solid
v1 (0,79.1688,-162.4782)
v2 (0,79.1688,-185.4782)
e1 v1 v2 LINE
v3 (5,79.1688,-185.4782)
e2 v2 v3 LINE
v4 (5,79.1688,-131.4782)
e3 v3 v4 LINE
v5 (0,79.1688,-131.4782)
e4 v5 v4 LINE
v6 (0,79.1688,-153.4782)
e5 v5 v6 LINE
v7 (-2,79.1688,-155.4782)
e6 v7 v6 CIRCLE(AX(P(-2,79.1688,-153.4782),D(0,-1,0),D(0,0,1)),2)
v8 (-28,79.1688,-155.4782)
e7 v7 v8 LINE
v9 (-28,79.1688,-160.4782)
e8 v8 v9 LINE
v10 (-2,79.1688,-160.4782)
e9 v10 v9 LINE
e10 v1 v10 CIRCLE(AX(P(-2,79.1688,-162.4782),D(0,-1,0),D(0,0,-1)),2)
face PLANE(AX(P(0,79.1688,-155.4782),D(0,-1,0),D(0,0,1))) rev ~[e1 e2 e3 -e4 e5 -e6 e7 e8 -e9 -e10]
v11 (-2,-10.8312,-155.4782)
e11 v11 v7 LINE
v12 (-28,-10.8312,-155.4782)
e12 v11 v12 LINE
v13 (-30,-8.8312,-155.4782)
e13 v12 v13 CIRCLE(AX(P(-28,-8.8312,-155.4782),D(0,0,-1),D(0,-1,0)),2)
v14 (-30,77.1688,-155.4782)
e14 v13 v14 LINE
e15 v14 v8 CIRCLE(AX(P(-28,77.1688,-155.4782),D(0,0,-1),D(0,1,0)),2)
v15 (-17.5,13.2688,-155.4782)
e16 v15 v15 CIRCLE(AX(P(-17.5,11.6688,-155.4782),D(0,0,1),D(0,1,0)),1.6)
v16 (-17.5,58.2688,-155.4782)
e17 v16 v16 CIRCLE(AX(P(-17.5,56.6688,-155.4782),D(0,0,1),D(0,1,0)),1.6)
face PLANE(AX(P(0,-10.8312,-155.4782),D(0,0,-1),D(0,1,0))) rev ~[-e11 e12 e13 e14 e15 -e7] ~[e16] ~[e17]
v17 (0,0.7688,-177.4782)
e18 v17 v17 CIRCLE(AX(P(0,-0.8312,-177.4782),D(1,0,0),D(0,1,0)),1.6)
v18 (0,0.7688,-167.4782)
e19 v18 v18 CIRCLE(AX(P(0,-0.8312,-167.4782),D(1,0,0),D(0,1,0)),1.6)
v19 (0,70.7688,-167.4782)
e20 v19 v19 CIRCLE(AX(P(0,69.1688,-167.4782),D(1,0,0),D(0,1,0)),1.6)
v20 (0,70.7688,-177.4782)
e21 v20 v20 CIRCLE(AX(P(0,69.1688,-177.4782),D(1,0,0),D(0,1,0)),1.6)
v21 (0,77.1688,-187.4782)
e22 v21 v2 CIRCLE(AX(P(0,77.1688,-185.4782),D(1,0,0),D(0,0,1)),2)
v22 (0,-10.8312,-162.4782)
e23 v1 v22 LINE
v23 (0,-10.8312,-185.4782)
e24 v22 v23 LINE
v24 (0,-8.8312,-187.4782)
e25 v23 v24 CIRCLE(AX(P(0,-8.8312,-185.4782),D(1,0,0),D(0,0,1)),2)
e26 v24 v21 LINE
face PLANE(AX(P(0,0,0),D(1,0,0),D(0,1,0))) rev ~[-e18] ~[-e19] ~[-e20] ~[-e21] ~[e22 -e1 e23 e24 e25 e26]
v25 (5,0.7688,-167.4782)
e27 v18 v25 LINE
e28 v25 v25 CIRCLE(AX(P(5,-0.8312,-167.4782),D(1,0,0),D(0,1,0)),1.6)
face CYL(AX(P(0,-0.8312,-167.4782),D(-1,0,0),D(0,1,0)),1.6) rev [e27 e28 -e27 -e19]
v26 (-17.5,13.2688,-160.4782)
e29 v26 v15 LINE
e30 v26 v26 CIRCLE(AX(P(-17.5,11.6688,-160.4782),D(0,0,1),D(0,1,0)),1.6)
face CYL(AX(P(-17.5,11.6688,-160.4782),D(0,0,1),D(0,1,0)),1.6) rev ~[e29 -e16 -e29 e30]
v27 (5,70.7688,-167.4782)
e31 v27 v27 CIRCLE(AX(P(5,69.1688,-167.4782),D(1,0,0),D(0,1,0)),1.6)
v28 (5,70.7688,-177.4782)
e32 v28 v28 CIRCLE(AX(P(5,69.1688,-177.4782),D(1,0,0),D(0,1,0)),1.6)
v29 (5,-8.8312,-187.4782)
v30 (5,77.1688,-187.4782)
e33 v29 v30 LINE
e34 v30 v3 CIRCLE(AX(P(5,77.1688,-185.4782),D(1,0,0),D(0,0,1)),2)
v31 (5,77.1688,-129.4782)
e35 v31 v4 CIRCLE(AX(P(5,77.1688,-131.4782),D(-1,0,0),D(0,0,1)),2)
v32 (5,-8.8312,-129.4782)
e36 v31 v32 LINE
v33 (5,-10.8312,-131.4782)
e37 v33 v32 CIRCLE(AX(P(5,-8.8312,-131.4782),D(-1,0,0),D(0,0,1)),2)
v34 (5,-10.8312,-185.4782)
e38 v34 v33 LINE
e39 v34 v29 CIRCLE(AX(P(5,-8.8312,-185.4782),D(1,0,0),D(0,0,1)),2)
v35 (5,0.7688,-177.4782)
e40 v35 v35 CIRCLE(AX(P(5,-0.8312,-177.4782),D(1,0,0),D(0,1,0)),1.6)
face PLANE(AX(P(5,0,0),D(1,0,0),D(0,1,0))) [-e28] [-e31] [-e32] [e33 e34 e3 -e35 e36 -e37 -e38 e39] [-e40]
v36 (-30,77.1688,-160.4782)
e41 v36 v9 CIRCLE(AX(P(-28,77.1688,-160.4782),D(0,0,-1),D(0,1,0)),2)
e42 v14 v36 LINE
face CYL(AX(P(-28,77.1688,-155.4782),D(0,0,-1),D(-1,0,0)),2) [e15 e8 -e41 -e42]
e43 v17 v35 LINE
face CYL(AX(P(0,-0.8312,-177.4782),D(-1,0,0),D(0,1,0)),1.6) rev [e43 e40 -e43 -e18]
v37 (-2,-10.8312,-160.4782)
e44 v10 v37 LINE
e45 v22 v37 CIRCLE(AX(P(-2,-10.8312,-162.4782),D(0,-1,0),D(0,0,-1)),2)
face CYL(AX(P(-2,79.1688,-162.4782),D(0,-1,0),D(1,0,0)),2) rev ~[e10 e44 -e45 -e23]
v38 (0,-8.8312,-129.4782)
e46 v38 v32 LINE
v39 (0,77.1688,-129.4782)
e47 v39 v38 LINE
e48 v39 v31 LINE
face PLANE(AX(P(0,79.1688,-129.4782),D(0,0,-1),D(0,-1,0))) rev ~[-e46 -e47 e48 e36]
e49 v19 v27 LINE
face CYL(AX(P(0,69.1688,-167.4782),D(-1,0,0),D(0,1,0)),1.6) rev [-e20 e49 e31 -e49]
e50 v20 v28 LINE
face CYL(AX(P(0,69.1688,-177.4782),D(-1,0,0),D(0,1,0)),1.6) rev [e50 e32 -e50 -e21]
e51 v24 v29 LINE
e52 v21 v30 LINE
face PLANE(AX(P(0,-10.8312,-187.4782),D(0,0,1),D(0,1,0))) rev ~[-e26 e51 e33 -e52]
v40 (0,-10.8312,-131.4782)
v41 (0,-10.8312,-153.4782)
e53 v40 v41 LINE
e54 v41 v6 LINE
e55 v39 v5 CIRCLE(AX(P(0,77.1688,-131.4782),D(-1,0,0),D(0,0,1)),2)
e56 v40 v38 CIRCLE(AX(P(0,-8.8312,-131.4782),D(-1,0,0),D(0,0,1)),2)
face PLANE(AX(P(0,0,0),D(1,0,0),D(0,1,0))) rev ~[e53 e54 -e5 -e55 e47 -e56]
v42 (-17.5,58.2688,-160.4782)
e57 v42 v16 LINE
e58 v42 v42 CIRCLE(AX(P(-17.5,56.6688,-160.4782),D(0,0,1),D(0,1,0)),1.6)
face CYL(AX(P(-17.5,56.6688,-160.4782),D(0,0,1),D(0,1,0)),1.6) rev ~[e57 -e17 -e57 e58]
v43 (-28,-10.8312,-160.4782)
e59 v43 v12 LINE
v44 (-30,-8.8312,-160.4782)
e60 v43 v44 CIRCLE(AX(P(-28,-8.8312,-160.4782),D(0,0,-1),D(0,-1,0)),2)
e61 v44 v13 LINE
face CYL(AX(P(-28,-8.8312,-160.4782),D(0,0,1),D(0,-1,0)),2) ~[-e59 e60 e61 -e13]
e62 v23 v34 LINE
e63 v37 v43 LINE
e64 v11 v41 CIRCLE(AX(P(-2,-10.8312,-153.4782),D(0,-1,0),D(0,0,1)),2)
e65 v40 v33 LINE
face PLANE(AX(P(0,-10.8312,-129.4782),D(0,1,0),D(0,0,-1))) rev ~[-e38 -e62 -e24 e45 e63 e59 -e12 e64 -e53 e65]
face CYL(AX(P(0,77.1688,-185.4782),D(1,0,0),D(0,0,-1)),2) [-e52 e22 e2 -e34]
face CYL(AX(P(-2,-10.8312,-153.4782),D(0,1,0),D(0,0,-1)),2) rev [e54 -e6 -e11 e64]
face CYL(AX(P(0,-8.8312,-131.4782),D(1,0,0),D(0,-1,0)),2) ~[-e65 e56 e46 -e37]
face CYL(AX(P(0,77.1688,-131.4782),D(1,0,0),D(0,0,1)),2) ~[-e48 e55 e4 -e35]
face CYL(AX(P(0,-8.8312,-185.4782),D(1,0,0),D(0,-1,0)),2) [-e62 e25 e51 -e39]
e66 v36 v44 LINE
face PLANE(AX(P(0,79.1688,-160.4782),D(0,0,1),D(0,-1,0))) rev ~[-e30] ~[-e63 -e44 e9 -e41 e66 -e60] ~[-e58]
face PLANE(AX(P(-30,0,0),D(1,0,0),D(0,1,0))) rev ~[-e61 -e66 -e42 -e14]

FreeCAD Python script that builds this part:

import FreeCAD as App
import Part
import Sketcher

V = App.Vector
Q = App.Units.Quantity


def edges_at(feature, points):
    """Names of the edges that pass closest to the given points."""
    edges = feature.Shape.Edges
    near = lambda p: min(range(len(edges)), key=lambda i: edges[i].distToShape(Part.Vertex(*p))[0])
    return sorted({f"Edge{near(p) + 1}" for p in points})

doc = App.newDocument("Part")
body = doc.addObject("PartDesign::Body", "Body")

sketch1 = body.newObject("Sketcher::SketchObject", "Sketch")
sketch1.AttachmentSupport = (doc.getObject("YZ_Plane"), [""])
sketch1.MapMode = "FlatFace"
sketch1.addGeometry(Part.LineSegment(V(-10.8312, -129.4782, 0), V(-10.8312, -187.4782, 0)), False)
sketch1.addGeometry(Part.LineSegment(V(-10.8312, -187.4782, 0), V(79.1688, -187.4782, 0)), False)
sketch1.addGeometry(Part.LineSegment(V(79.1688, -187.4782, 0), V(79.1688, -129.4782, 0)), False)
sketch1.addGeometry(Part.LineSegment(V(79.1688, -129.4782, 0), V(-10.8312, -129.4782, 0)), False)
sketch1.addGeometry(Part.Circle(V(69.1688, -167.4782, 0), V(0, 0, 1), 1.6), False)
sketch1.addGeometry(Part.Circle(V(-0.8312, -177.4782, 0), V(0, 0, 1), 1.6), False)
sketch1.addGeometry(Part.Circle(V(-0.8312, -167.4782, 0), V(0, 0, 1), 1.6), False)
sketch1.addGeometry(Part.Circle(V(69.1688, -177.4782, 0), V(0, 0, 1), 1.6), False)
sketch1.addConstraint(Sketcher.Constraint("Coincident", 0, 2, 1, 1))
sketch1.addConstraint(Sketcher.Constraint("Coincident", 1, 2, 2, 1))
sketch1.addConstraint(Sketcher.Constraint("Coincident", 2, 2, 3, 1))
sketch1.addConstraint(Sketcher.Constraint("Coincident", 3, 2, 0, 1))
sketch1.addConstraint(Sketcher.Constraint("Vertical", 0))
sketch1.addConstraint(Sketcher.Constraint("Horizontal", 1))
sketch1.addConstraint(Sketcher.Constraint("Vertical", 2))
sketch1.addConstraint(Sketcher.Constraint("Horizontal", 3))
sketch1.addConstraint(Sketcher.Constraint("Equal", 4, 5))
sketch1.addConstraint(Sketcher.Constraint("Equal", 5, 6))
sketch1.addConstraint(Sketcher.Constraint("Equal", 6, 7))
sketch1.addConstraint(Sketcher.Constraint("Horizontal", 4, 3, 6, 3))
sketch1.addConstraint(Sketcher.Constraint("Horizontal", 5, 3, 7, 3))
sketch1.addConstraint(Sketcher.Constraint("Vertical", 5, 3, 6, 3))
sketch1.addConstraint(Sketcher.Constraint("Vertical", 4, 3, 7, 3))
sketch1.addConstraint(Sketcher.Constraint("Diameter", 4, Q("3.2 mm")))
sketch1.addConstraint(Sketcher.Constraint("DistanceX", 1, 1, 1, 2, Q("90 mm")))
sketch1.addConstraint(Sketcher.Constraint("DistanceY", 0, 2, 0, 1, Q("58 mm")))
sketch1.addConstraint(Sketcher.Constraint("DistanceX", 5, 3, 4, 3, Q("70 mm")))
sketch1.addConstraint(Sketcher.Constraint("DistanceY", 5, 3, 4, 3, Q("10 mm")))
sketch1.addConstraint(Sketcher.Constraint("DistanceX", 0, 2, 5, 3, Q("10 mm")))
sketch1.addConstraint(Sketcher.Constraint("DistanceY", 0, 2, 5, 3, Q("10 mm")))
sketch1.addConstraint(Sketcher.Constraint("DistanceX", -1, 1, 4, 3, Q("69.1688 mm")))
sketch1.addConstraint(Sketcher.Constraint("DistanceY", 4, 3, -1, 1, Q("167.4782 mm")))
pad1 = body.newObject("PartDesign::Pad", "Pad")
pad1.Profile = sketch1
pad1.Length = 5

sketch2 = body.newObject("Sketcher::SketchObject", "Sketch001")
sketch2.AttachmentSupport = (doc.getObject("YZ_Plane"), [""])
sketch2.MapMode = "FlatFace"
sketch2.addGeometry(Part.LineSegment(V(79.1688, -155.4782, 0), V(-10.8312, -155.4782, 0)), False)
sketch2.addGeometry(Part.LineSegment(V(-10.8312, -155.4782, 0), V(-10.8312, -160.4782, 0)), False)
sketch2.addGeometry(Part.LineSegment(V(-10.8312, -160.4782, 0), V(79.1688, -160.4782, 0)), False)
sketch2.addGeometry(Part.LineSegment(V(79.1688, -160.4782, 0), V(79.1688, -155.4782, 0)), False)
sketch2.addConstraint(Sketcher.Constraint("Coincident", 0, 2, 1, 1))
sketch2.addConstraint(Sketcher.Constraint("Coincident", 1, 2, 2, 1))
sketch2.addConstraint(Sketcher.Constraint("Coincident", 2, 2, 3, 1))
sketch2.addConstraint(Sketcher.Constraint("Coincident", 3, 2, 0, 1))
sketch2.addConstraint(Sketcher.Constraint("Horizontal", 0))
sketch2.addConstraint(Sketcher.Constraint("Vertical", 1))
sketch2.addConstraint(Sketcher.Constraint("Horizontal", 2))
sketch2.addConstraint(Sketcher.Constraint("Vertical", 3))
sketch2.addConstraint(Sketcher.Constraint("DistanceX", 0, 2, 0, 1, Q("90 mm")))
sketch2.addConstraint(Sketcher.Constraint("DistanceY", 1, 2, 1, 1, Q("5 mm")))
sketch2.addConstraint(Sketcher.Constraint("DistanceX", 0, 2, -1, 1, Q("10.8312 mm")))
sketch2.addConstraint(Sketcher.Constraint("DistanceY", 0, 2, -1, 1, Q("155.4782 mm")))
pad2 = body.newObject("PartDesign::Pad", "Pad001")
pad2.Profile = sketch2
pad2.Length = 30
pad2.Reversed = True

sketch3 = body.newObject("Sketcher::SketchObject", "Sketch002")
sketch3.AttachmentSupport = (doc.getObject("XY_Plane"), [""])
sketch3.MapMode = "FlatFace"
sketch3.AttachmentOffset = App.Placement(V(0, 0, -160.4782), App.Rotation())
sketch3.addGeometry(Part.Circle(V(-17.5, 11.6688, 0), V(0, 0, 1), 1.6), False)
sketch3.addGeometry(Part.Circle(V(-17.5, 56.6688, 0), V(0, 0, 1), 1.6), False)
sketch3.addConstraint(Sketcher.Constraint("Equal", 0, 1))
sketch3.addConstraint(Sketcher.Constraint("Vertical", 0, 3, 1, 3))
sketch3.addConstraint(Sketcher.Constraint("Diameter", 0, Q("3.2 mm")))
sketch3.addConstraint(Sketcher.Constraint("DistanceY", 0, 3, 1, 3, Q("45 mm")))
sketch3.addConstraint(Sketcher.Constraint("DistanceX", 0, 3, -1, 1, Q("17.5 mm")))
sketch3.addConstraint(Sketcher.Constraint("DistanceY", -1, 1, 0, 3, Q("11.6688 mm")))
doc.recompute()
hole = body.newObject("PartDesign::Hole", "Hole")
hole.Profile = sketch3
hole.ThreadType = "None"
hole.Diameter = 3.2
hole.DepthType = "ThroughAll"
hole.Reversed = True
doc.recompute()

fillet = body.newObject("PartDesign::Fillet", "Fillet")
fillet.Base = (hole, edges_at(hole, [
    (0, 34.169, -160.478),
    (-30, -10.831, -157.978),
    (-30, 79.169, -157.978),
    (0, 34.169, -155.478),
    (2.5, -10.831, -187.478),
    (2.5, 79.169, -187.478),
    (2.5, 79.169, -129.478),
    (2.5, -10.831, -129.478),
]))
fillet.Radius = 2

doc.recompute()
